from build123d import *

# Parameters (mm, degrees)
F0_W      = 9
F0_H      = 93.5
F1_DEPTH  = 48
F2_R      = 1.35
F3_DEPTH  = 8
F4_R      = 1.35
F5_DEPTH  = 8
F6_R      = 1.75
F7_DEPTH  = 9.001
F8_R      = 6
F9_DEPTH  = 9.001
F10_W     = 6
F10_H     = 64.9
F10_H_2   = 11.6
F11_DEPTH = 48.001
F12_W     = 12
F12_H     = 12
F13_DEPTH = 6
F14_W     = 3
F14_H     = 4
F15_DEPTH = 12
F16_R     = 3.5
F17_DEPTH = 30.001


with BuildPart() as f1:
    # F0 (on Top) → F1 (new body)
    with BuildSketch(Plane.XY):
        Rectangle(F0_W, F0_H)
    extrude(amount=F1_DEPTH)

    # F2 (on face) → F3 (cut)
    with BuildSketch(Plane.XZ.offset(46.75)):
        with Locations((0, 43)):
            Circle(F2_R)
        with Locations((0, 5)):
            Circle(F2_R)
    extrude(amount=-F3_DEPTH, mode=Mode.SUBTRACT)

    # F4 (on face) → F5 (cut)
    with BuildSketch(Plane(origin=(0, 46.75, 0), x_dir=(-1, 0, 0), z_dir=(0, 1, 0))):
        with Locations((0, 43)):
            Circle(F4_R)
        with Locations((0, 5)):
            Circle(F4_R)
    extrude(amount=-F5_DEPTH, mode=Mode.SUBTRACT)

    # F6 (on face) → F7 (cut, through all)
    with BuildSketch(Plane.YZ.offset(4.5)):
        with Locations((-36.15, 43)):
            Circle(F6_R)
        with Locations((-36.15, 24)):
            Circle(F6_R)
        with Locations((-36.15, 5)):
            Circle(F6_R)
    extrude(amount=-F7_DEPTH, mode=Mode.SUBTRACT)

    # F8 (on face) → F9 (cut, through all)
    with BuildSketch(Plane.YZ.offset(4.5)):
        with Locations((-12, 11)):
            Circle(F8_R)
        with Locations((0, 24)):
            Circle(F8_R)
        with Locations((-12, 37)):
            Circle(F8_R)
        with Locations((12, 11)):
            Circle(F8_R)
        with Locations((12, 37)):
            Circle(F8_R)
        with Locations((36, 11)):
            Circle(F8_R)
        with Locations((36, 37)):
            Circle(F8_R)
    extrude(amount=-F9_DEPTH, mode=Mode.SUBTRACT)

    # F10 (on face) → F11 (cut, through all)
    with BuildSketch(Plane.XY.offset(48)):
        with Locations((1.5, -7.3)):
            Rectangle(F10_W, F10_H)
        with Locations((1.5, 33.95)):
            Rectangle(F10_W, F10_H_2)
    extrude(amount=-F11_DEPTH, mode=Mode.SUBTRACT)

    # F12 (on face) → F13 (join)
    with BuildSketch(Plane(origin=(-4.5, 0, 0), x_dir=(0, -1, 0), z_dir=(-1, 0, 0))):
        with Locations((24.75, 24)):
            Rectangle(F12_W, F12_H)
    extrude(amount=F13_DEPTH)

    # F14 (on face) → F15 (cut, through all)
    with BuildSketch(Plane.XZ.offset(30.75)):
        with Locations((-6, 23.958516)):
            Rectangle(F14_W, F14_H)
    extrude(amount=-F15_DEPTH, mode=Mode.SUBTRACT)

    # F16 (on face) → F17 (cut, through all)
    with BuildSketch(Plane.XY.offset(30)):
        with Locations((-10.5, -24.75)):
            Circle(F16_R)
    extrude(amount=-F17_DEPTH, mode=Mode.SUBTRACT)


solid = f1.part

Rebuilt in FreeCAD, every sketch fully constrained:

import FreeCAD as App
import Part
import Sketcher


def add_polygon(sketch, points):
    """Adds a closed chain of lines whose ends are joined by coincident constraints."""
    first, n = sketch.GeometryCount, len(points)
    for a, b in zip(points, points[1:] + points[:1]):
        sketch.addGeometry(Part.LineSegment(App.Vector(*a, 0), App.Vector(*b, 0)), False)
    for i in range(n):
        sketch.addConstraint(Sketcher.Constraint("Coincident", first + i, 2, first + (i + 1) % n, 1))

doc = App.newDocument("Part")
body = doc.addObject("PartDesign::Body", "Body")

sketch1 = body.newObject("Sketcher::SketchObject", "Sketch")
sketch1.AttachmentSupport = (doc.getObject("XY_Plane"), [""])
sketch1.MapMode = "FlatFace"
add_polygon(sketch1, [(-4, 47), (-4, -47), (4, -47), (4, 47)])
sketch1.addConstraint([
    Sketcher.Constraint("Vertical", 0),
    Sketcher.Constraint("Horizontal", 1),
    Sketcher.Constraint("Vertical", 2),
    Sketcher.Constraint("Horizontal", 3),
    Sketcher.Constraint("Symmetric", 0, 2, 2, 2, -1, 1),
    Sketcher.Constraint("DistanceX", 1, 1, 1, 2, 9.0),
    Sketcher.Constraint("DistanceY", 0, 2, 0, 1, 93.5),
])
pad1 = body.newObject("PartDesign::Pad", "Pad")
pad1.Profile = sketch1
pad1.Length = 48

sketch2 = body.newObject("Sketcher::SketchObject", "Sketch001")
sketch2.AttachmentSupport = (doc.getObject("XZ_Plane"), [""])
sketch2.MapMode = "FlatFace"
sketch2.AttachmentOffset = App.Placement(App.Vector(0, 0, 46.75), App.Rotation())
sketch2.addGeometry([
    Part.Circle(App.Vector(0, 43, 0), App.Vector(0, 0, 1), 1.4),
    Part.Circle(App.Vector(0, 5, 0), App.Vector(0, 0, 1), 1.4),
], False)
sketch2.addConstraint([
    Sketcher.Constraint("Equal", 0, 1),
    Sketcher.Constraint("PointOnObject", 0, 3, -2),
    Sketcher.Constraint("PointOnObject", 1, 3, -2),
    Sketcher.Constraint("Diameter", 0, 2.7),
    Sketcher.Constraint("DistanceY", -1, 1, 0, 3, 43.0),
    Sketcher.Constraint("DistanceY", -1, 1, 1, 3, 5.0),
])
pocket1 = body.newObject("PartDesign::Pocket", "Pocket")
pocket1.Profile = sketch2
pocket1.Length = 8

sketch3 = body.newObject("Sketcher::SketchObject", "Sketch002")
sketch3.AttachmentSupport = (doc.getObject("XZ_Plane"), [""])
sketch3.MapMode = "FlatFace"
sketch3.AttachmentOffset = App.Placement(App.Vector(0, 0, -46.75), App.Rotation())
sketch3.addGeometry([
    Part.Circle(App.Vector(0, 43, 0), App.Vector(0, 0, 1), 1.4),
    Part.Circle(App.Vector(0, 5, 0), App.Vector(0, 0, 1), 1.4),
], False)
sketch3.addConstraint([
    Sketcher.Constraint("Equal", 0, 1),
    Sketcher.Constraint("PointOnObject", 0, 3, -2),
    Sketcher.Constraint("PointOnObject", 1, 3, -2),
    Sketcher.Constraint("Diameter", 0, 2.7),
    Sketcher.Constraint("DistanceY", -1, 1, 0, 3, 43.0),
    Sketcher.Constraint("DistanceY", -1, 1, 1, 3, 5.0),
])
pocket2 = body.newObject("PartDesign::Pocket", "Pocket001")
pocket2.Profile = sketch3
pocket2.Length = 8
pocket2.Reversed = True

sketch4 = body.newObject("Sketcher::SketchObject", "Sketch003")
sketch4.AttachmentSupport = (doc.getObject("YZ_Plane"), [""])
sketch4.MapMode = "FlatFace"
sketch4.AttachmentOffset = App.Placement(App.Vector(0, 0, 4.5), App.Rotation())
sketch4.addGeometry([
    Part.Circle(App.Vector(-36.1, 43, 0), App.Vector(0, 0, 1), 1.8),
    Part.Circle(App.Vector(-36.1, 24, 0), App.Vector(0, 0, 1), 1.8),
    Part.Circle(App.Vector(-36.1, 5, 0), App.Vector(0, 0, 1), 1.8),
], False)
sketch4.addConstraint([
    Sketcher.Constraint("Equal", 0, 1),
    Sketcher.Constraint("Equal", 1, 2),
    Sketcher.Constraint("Vertical", 0, 3, 1, 3),
    Sketcher.Constraint("Vertical", 1, 3, 2, 3),
    Sketcher.Constraint("Diameter", 0, 3.5),
    Sketcher.Constraint("DistanceY", -1, 1, 0, 3, 43.0),
    Sketcher.Constraint("DistanceY", -1, 1, 1, 3, 24.0),
    Sketcher.Constraint("DistanceY", -1, 1, 2, 3, 5.0),
    Sketcher.Constraint("DistanceX", 0, 3, -1, 1, 36.15),
])
pocket3 = body.newObject("PartDesign::Pocket", "Pocket002")
pocket3.Profile = sketch4
pocket3.Type = "ThroughAll"

sketch5 = body.newObject("Sketcher::SketchObject", "Sketch004")
sketch5.AttachmentSupport = (doc.getObject("YZ_Plane"), [""])
sketch5.MapMode = "FlatFace"
sketch5.AttachmentOffset = App.Placement(App.Vector(0, 0, 4.5), App.Rotation())
sketch5.addGeometry([
    Part.Circle(App.Vector(-12, 11, 0), App.Vector(0, 0, 1), 6),
    Part.Circle(App.Vector(0, 24, 0), App.Vector(0, 0, 1), 6),
    Part.Circle(App.Vector(-12, 37, 0), App.Vector(0, 0, 1), 6),
    Part.Circle(App.Vector(12, 11, 0), App.Vector(0, 0, 1), 6),
    Part.Circle(App.Vector(12, 37, 0), App.Vector(0, 0, 1), 6),
    Part.Circle(App.Vector(36, 11, 0), App.Vector(0, 0, 1), 6),
    Part.Circle(App.Vector(36, 37, 0), App.Vector(0, 0, 1), 6),
], False)
sketch5.addConstraint([
    Sketcher.Constraint("Equal", 0, 1),
    Sketcher.Constraint("Equal", 1, 2),
    Sketcher.Constraint("Equal", 2, 3),
    Sketcher.Constraint("Equal", 3, 4),
    Sketcher.Constraint("Equal", 4, 5),
    Sketcher.Constraint("Equal", 5, 6),
    Sketcher.Constraint("Symmetric", 0, 3, 3, 3, -2),
    Sketcher.Constraint("Symmetric", 2, 3, 4, 3, -2),
    Sketcher.Constraint("PointOnObject", 1, 3, -2),
    Sketcher.Constraint("Horizontal", 3, 3, 5, 3),
    Sketcher.Constraint("Horizontal", 4, 3, 6, 3),
    Sketcher.Constraint("Vertical", 0, 3, 2, 3),
    Sketcher.Constraint("Vertical", 5, 3, 6, 3),
    Sketcher.Constraint("Diameter", 0, 12.0),
    Sketcher.Constraint("DistanceX", 0, 3, -1, 1, 12.0),
    Sketcher.Constraint("DistanceY", -1, 1, 0, 3, 11.0),
    Sketcher.Constraint("DistanceY", -1, 1, 1, 3, 24.0),
    Sketcher.Constraint("DistanceY", -1, 1, 2, 3, 37.0),
    Sketcher.Constraint("DistanceX", -1, 1, 5, 3, 36.0),
])
pocket4 = body.newObject("PartDesign::Pocket", "Pocket003")
pocket4.Profile = sketch5
pocket4.Type = "ThroughAll"

sketch6 = body.newObject("Sketcher::SketchObject", "Sketch005")
sketch6.AttachmentSupport = (doc.getObject("XY_Plane"), [""])
sketch6.MapMode = "FlatFace"
sketch6.AttachmentOffset = App.Placement(App.Vector(0, 0, 48), App.Rotation())
add_polygon(sketch6, [(-2, 25), (-2, -40), (4, -40), (4, 25)])
add_polygon(sketch6, [(-2, 40), (-2, 28), (4, 28), (4, 40)])
sketch6.addConstraint([
    Sketcher.Constraint("Vertical", 0),
    Sketcher.Constraint("Horizontal", 1),
    Sketcher.Constraint("Vertical", 2),
    Sketcher.Constraint("Horizontal", 3),
    Sketcher.Constraint("Vertical", 4),
    Sketcher.Constraint("Horizontal", 5),
    Sketcher.Constraint("Vertical", 6),
    Sketcher.Constraint("Horizontal", 7),
    Sketcher.Constraint("Symmetric", 1, 2, 6, 2, -1),
    Sketcher.Constraint("Vertical", 3, 2, 4, 2),
    Sketcher.Constraint("DistanceX", 1, 1, 1, 2, 6.0),
    Sketcher.Constraint("DistanceY", 0, 2, 0, 1, 64.9),
    Sketcher.Constraint("DistanceY", 4, 2, 4, 1, 11.6),
    Sketcher.Constraint("DistanceY", 3, 2, 4, 2, 3.0),
    Sketcher.Constraint("DistanceX", 0, 2, -1, 1, 1.5),
])
pocket5 = body.newObject("PartDesign::Pocket", "Pocket004")
pocket5.Profile = sketch6
pocket5.Type = "ThroughAll"

sketch7 = body.newObject("Sketcher::SketchObject", "Sketch006")
sketch7.AttachmentSupport = (doc.getObject("YZ_Plane"), [""])
sketch7.MapMode = "FlatFace"
sketch7.AttachmentOffset = App.Placement(App.Vector(0, 0, -4.5), App.Rotation())
add_polygon(sketch7, [(-19, 30), (-19, 18), (-31, 18), (-31, 30)])
sketch7.addConstraint([
    Sketcher.Constraint("Vertical", 0),
    Sketcher.Constraint("Horizontal", 1),
    Sketcher.Constraint("Vertical", 2),
    Sketcher.Constraint("Horizontal", 3),
    Sketcher.Constraint("Equal", 3, 0),
    Sketcher.Constraint("DistanceX", 1, 2, 1, 1, 12.0),
    Sketcher.Constraint("DistanceY", -1, 1, 0, 2, 18.0),
    Sketcher.Constraint("DistanceX", 0, 2, -1, 1, 18.75),
])
pad2 = body.newObject("PartDesign::Pad", "Pad001")
pad2.Profile = sketch7
pad2.Length = 6
pad2.Reversed = True

sketch8 = body.newObject("Sketcher::SketchObject", "Sketch007")
sketch8.AttachmentSupport = (doc.getObject("XZ_Plane"), [""])
sketch8.MapMode = "FlatFace"
sketch8.AttachmentOffset = App.Placement(App.Vector(0, 0, 30.75), App.Rotation())
add_polygon(sketch8, [(-7.5, 26), (-7.5, 22), (-4.5, 22), (-4.5, 26)])
sketch8.addConstraint([
    Sketcher.Constraint("Vertical", 0),
    Sketcher.Constraint("Horizontal", 1),
    Sketcher.Constraint("Vertical", 2),
    Sketcher.Constraint("Horizontal", 3),
    Sketcher.Constraint("DistanceX", 1, 1, 1, 2, 3.0),
    Sketcher.Constraint("DistanceY", 0, 2, 0, 1, 4.0),
    Sketcher.Constraint("DistanceX", 0, 2, -1, 1, 7.5),
    Sketcher.Constraint("DistanceY", -1, 1, 0, 2, 21.958516),
])
pocket6 = body.newObject("PartDesign::Pocket", "Pocket005")
pocket6.Profile = sketch8
pocket6.Type = "ThroughAll"

sketch9 = body.newObject("Sketcher::SketchObject", "Sketch008")
sketch9.AttachmentSupport = (doc.getObject("XY_Plane"), [""])
sketch9.MapMode = "FlatFace"
sketch9.AttachmentOffset = App.Placement(App.Vector(0, 0, 30), App.Rotation())
sketch9.addGeometry(Part.Circle(App.Vector(-10.5, -24.8, 0), App.Vector(0, 0, 1), 3.5), False)
sketch9.addConstraint([
    Sketcher.Constraint("Diameter", 0, 7.0),
    Sketcher.Constraint("DistanceX", 0, 3, -1, 1, 10.5),
    Sketcher.Constraint("DistanceY", 0, 3, -1, 1, 24.75),
])
pocket7 = body.newObject("PartDesign::Pocket", "Pocket006")
pocket7.Profile = sketch9
pocket7.Type = "ThroughAll"

doc.recompute()
